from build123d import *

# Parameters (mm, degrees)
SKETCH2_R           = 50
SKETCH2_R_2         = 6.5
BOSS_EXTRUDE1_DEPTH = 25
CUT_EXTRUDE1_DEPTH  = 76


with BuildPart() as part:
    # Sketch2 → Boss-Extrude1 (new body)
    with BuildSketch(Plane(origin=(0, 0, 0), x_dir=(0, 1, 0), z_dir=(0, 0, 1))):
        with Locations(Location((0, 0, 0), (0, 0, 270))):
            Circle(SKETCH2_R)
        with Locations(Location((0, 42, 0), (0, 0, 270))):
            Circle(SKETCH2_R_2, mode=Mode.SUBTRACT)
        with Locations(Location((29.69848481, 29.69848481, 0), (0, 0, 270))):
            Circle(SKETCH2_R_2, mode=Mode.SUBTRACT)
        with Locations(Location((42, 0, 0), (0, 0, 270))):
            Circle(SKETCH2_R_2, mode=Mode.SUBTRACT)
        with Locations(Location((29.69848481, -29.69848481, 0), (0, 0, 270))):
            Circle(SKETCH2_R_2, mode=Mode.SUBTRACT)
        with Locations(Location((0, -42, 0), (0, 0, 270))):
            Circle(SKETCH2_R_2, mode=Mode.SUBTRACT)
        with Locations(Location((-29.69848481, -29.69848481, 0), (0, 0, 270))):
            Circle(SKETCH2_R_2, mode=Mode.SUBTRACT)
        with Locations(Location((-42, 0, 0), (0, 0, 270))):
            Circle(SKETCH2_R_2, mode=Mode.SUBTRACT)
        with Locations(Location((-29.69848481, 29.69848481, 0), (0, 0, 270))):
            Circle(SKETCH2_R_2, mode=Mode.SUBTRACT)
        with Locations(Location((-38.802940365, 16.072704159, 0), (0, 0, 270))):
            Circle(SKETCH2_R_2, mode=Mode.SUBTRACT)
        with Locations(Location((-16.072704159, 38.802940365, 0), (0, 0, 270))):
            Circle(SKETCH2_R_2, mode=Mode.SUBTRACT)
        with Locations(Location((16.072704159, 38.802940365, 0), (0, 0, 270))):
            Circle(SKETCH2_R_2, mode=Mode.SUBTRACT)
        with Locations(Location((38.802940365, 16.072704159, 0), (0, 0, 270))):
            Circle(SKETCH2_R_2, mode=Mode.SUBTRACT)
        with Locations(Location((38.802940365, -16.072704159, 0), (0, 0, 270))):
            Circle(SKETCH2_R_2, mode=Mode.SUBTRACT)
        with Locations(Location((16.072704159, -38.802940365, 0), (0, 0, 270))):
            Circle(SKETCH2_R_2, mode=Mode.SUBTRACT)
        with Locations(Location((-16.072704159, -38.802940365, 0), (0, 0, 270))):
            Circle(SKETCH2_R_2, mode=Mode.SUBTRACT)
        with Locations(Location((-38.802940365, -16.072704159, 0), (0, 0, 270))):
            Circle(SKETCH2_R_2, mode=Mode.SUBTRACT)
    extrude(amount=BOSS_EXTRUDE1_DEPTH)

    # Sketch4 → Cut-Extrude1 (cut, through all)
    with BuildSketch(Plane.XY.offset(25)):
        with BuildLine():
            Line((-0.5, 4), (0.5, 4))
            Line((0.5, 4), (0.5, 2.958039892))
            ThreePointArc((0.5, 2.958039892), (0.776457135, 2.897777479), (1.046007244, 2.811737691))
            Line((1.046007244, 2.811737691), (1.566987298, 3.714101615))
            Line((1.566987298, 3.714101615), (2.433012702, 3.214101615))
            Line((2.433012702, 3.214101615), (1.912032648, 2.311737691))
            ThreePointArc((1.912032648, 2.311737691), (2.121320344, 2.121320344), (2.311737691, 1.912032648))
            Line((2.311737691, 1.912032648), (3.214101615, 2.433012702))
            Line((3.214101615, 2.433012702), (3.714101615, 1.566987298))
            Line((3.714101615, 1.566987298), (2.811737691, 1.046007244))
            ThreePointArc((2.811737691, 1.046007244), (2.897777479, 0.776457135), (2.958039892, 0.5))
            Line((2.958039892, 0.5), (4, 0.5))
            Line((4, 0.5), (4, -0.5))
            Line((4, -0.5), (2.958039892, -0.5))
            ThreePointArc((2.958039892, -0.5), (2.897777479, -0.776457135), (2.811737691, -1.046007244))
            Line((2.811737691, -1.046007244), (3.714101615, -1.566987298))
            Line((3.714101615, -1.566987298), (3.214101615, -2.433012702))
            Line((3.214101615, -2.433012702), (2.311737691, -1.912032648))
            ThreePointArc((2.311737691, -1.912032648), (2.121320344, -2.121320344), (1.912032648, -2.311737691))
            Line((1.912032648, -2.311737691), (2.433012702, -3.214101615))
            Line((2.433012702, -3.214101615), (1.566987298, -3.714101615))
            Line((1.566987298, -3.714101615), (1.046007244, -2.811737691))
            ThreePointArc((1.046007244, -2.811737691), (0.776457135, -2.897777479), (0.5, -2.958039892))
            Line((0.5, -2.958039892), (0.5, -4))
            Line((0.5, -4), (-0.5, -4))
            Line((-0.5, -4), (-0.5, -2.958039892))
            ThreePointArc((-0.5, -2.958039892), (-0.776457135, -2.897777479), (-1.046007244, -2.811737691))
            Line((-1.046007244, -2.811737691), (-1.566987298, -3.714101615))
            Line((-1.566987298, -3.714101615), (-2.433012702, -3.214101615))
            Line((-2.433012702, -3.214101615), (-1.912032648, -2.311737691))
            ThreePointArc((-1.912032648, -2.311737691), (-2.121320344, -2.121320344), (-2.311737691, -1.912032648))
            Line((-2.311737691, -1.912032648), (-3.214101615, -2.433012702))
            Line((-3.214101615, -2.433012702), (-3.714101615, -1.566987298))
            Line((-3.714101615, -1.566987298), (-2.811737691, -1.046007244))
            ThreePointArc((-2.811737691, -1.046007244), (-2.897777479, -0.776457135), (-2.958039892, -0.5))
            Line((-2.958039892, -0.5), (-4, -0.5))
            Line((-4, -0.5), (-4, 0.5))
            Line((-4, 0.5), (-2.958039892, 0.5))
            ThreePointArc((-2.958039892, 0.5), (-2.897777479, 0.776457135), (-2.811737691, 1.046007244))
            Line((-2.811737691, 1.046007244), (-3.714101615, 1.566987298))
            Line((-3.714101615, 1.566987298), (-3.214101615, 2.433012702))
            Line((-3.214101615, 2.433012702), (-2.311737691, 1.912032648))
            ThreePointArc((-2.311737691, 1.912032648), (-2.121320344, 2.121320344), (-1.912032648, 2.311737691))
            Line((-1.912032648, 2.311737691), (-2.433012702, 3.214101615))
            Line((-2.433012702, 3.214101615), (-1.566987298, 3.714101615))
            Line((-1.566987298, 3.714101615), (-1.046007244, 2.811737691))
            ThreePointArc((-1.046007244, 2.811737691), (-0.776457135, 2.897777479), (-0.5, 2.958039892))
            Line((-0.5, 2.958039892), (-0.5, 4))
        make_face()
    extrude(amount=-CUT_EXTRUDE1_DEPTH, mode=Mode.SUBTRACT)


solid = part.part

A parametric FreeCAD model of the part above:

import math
import FreeCAD as App
import Part
import Sketcher
Q = App.Units.Quantity

doc = App.newDocument("Part")
body = doc.addObject("PartDesign::Body", "Body")

# Sketch on XY plane
sketch1 = body.newObject("Sketcher::SketchObject", "Sketch")
sketch1.AttachmentSupport = (doc.getObject("XY_Plane"), [""])
sketch1.MapMode = "FlatFace"
sketch1.addGeometry([
    Part.Circle(App.Vector(0, 0, 0), App.Vector(0, 0, 1), 50),  # 0
    Part.Circle(App.Vector(-30, -30, 0), App.Vector(0, 0, 1), 6),  # 1
    Part.Circle(App.Vector(-16, -39, 0), App.Vector(0, 0, 1), 6),  # 2
    Part.Circle(App.Vector(-39, -16, 0), App.Vector(0, 0, 1), 6),  # 3
    Part.Circle(App.Vector(-42, 0, 0), App.Vector(0, 0, 1), 6),  # 4
    Part.Circle(App.Vector(0, -42, 0), App.Vector(0, 0, 1), 6),  # 5
    Part.Circle(App.Vector(16, -39, 0), App.Vector(0, 0, 1), 6),  # 6
    Part.Circle(App.Vector(30, -30, 0), App.Vector(0, 0, 1), 6),  # 7
    Part.Circle(App.Vector(39, -16, 0), App.Vector(0, 0, 1), 6),  # 8
    Part.Circle(App.Vector(-39, 16, 0), App.Vector(0, 0, 1), 6),  # 9
    Part.Circle(App.Vector(-30, 30, 0), App.Vector(0, 0, 1), 6),  # 10
    Part.Circle(App.Vector(-16, 39, 0), App.Vector(0, 0, 1), 6),  # 11
    Part.Circle(App.Vector(0, 42, 0), App.Vector(0, 0, 1), 6),  # 12
    Part.Circle(App.Vector(42, 0, 0), App.Vector(0, 0, 1), 6),  # 13
    Part.Circle(App.Vector(39, 16, 0), App.Vector(0, 0, 1), 6),  # 14
    Part.Circle(App.Vector(16, 39, 0), App.Vector(0, 0, 1), 6),  # 15
    Part.Circle(App.Vector(30, 30, 0), App.Vector(0, 0, 1), 6),  # 16
], False)
sketch1.addConstraint([
    Sketcher.Constraint("Coincident", 0, 3, -1, 1),
    Sketcher.Constraint("Equal", 1, 2),
    Sketcher.Constraint("Equal", 2, 3),
    Sketcher.Constraint("Equal", 3, 4),
    Sketcher.Constraint("Equal", 4, 5),
    Sketcher.Constraint("Equal", 5, 6),
    Sketcher.Constraint("Equal", 6, 7),
    Sketcher.Constraint("Equal", 7, 8),
    Sketcher.Constraint("Equal", 8, 9),
    Sketcher.Constraint("Equal", 9, 10),
    Sketcher.Constraint("Equal", 10, 11),
    Sketcher.Constraint("Equal", 11, 12),
    Sketcher.Constraint("Equal", 12, 13),
    Sketcher.Constraint("Equal", 13, 14),
    Sketcher.Constraint("Equal", 14, 15),
    Sketcher.Constraint("Equal", 15, 16),
    Sketcher.Constraint("Symmetric", 8, 3, 9, 3, -1, 1),
    Sketcher.Constraint("Symmetric", 7, 3, 10, 3, -1, 1),
    Sketcher.Constraint("Symmetric", 6, 3, 11, 3, -1, 1),
    Sketcher.Constraint("Symmetric", 5, 3, 12, 3, -1, 1),
    Sketcher.Constraint("Symmetric", 4, 3, 13, 3, -1, 1),
    Sketcher.Constraint("Symmetric", 3, 3, 14, 3, -1, 1),
    Sketcher.Constraint("Symmetric", 2, 3, 15, 3, -1, 1),
    Sketcher.Constraint("Symmetric", 1, 3, 16, 3, -1, 1),
    Sketcher.Constraint("Symmetric", 2, 3, 6, 3, -2),
    Sketcher.Constraint("Symmetric", 1, 3, 7, 3, -2),
    Sketcher.Constraint("Symmetric", 3, 3, 8, 3, -2),
    Sketcher.Constraint("PointOnObject", 4, 3, -1),
    Sketcher.Constraint("PointOnObject", 5, 3, -2),
    Sketcher.Constraint("Diameter", 0, 100.0),
    Sketcher.Constraint("Diameter", 1, 13.0),
    Sketcher.Constraint("DistanceX", 4, 3, -1, 1, 42.0),
    Sketcher.Constraint("DistanceY", 5, 3, -1, 1, 42.0),
    Sketcher.Constraint("DistanceY", 2, 3, -1, 1, 38.80294),
    Sketcher.Constraint("DistanceX", 3, 3, -1, 1, 38.80294),
    Sketcher.Constraint("DistanceX", 1, 3, 2, 3, 13.625781),
    Sketcher.Constraint("DistanceY", 1, 3, 3, 3, 13.625781),
    Sketcher.Constraint("DistanceX", 2, 3, 6, 3, 32.145408),
    Sketcher.Constraint("DistanceY", 3, 3, 9, 3, 32.145408),
])
pad1 = body.newObject("PartDesign::Pad", "Pad")
pad1.Profile = sketch1
pad1.Length = 25

# Sketch on XY plane
sketch2 = body.newObject("Sketcher::SketchObject", "Sketch001")
sketch2.AttachmentSupport = (doc.getObject("XY_Plane"), [""])
sketch2.MapMode = "FlatFace"
sketch2.AttachmentOffset = App.Placement(App.Vector(0, 0, 25), App.Rotation())
sketch2.addGeometry([
    Part.LineSegment(App.Vector(0.5, 4, 0), App.Vector(-0.5, 4, 0)),  # 0
    Part.LineSegment(App.Vector(-0.5, 4, 0), App.Vector(-0.5, 3, 0)),  # 1
    Part.ArcOfCircle(Part.Circle(App.Vector(0, 0, 0), App.Vector(0, 0, 1), 3), math.radians(99.59), math.radians(110.41)),  # 2
    Part.LineSegment(App.Vector(-1, 2.8, 0), App.Vector(-1.6, 3.7, 0)),  # 3
    Part.LineSegment(App.Vector(-1.6, 3.7, 0), App.Vector(-2.4, 3.2, 0)),  # 4
    Part.LineSegment(App.Vector(-2.4, 3.2, 0), App.Vector(-1.9, 2.3, 0)),  # 5
    Part.ArcOfCircle(Part.Circle(App.Vector(0, 0, 0), App.Vector(0, 0, 1), 3), math.radians(129.59), math.radians(140.41)),  # 6
    Part.LineSegment(App.Vector(-2.3, 1.9, 0), App.Vector(-3.2, 2.4, 0)),  # 7
    Part.LineSegment(App.Vector(-3.2, 2.4, 0), App.Vector(-3.7, 1.6, 0)),  # 8
    Part.LineSegment(App.Vector(-3.7, 1.6, 0), App.Vector(-2.8, 1, 0)),  # 9
    Part.ArcOfCircle(Part.Circle(App.Vector(0, 0, 0), App.Vector(0, 0, 1), 3), math.radians(159.59), math.radians(170.41)),  # 10
    Part.LineSegment(App.Vector(-3, 0.5, 0), App.Vector(-4, 0.5, 0)),  # 11
    Part.LineSegment(App.Vector(-4, 0.5, 0), App.Vector(-4, -0.5, 0)),  # 12
    Part.LineSegment(App.Vector(-4, -0.5, 0), App.Vector(-3, -0.5, 0)),  # 13
    Part.ArcOfCircle(Part.Circle(App.Vector(0, 0, 0), App.Vector(0, 0, 1), 3), math.radians(-170.41), math.radians(-159.59)),  # 14
    Part.LineSegment(App.Vector(-2.8, -1, 0), App.Vector(-3.7, -1.6, 0)),  # 15
    Part.LineSegment(App.Vector(-3.7, -1.6, 0), App.Vector(-3.2, -2.4, 0)),  # 16
    Part.LineSegment(App.Vector(-3.2, -2.4, 0), App.Vector(-2.3, -1.9, 0)),  # 17
    Part.ArcOfCircle(Part.Circle(App.Vector(0, 0, 0), App.Vector(0, 0, 1), 3), math.radians(-140.41), math.radians(-129.59)),  # 18
    Part.LineSegment(App.Vector(-1.9, -2.3, 0), App.Vector(-2.4, -3.2, 0)),  # 19
    Part.LineSegment(App.Vector(-2.4, -3.2, 0), App.Vector(-1.6, -3.7, 0)),  # 20
    Part.LineSegment(App.Vector(-1.6, -3.7, 0), App.Vector(-1, -2.8, 0)),  # 21
    Part.ArcOfCircle(Part.Circle(App.Vector(0, 0, 0), App.Vector(0, 0, 1), 3), math.radians(-110.41), math.radians(-99.59)),  # 22
    Part.LineSegment(App.Vector(-0.5, -3, 0), App.Vector(-0.5, -4, 0)),  # 23
    Part.LineSegment(App.Vector(-0.5, -4, 0), App.Vector(0.5, -4, 0)),  # 24
    Part.LineSegment(App.Vector(0.5, -4, 0), App.Vector(0.5, -3, 0)),  # 25
    Part.ArcOfCircle(Part.Circle(App.Vector(0, 0, 0), App.Vector(0, 0, 1), 3), math.radians(-80.41), math.radians(-69.59)),  # 26
    Part.LineSegment(App.Vector(1, -2.8, 0), App.Vector(1.6, -3.7, 0)),  # 27
    Part.LineSegment(App.Vector(1.6, -3.7, 0), App.Vector(2.4, -3.2, 0)),  # 28
    Part.LineSegment(App.Vector(2.4, -3.2, 0), App.Vector(1.9, -2.3, 0)),  # 29
    Part.ArcOfCircle(Part.Circle(App.Vector(0, 0, 0), App.Vector(0, 0, 1), 3), math.radians(-50.41), math.radians(-39.59)),  # 30
    Part.LineSegment(App.Vector(2.3, -1.9, 0), App.Vector(3.2, -2.4, 0)),  # 31
    Part.LineSegment(App.Vector(3.2, -2.4, 0), App.Vector(3.7, -1.6, 0)),  # 32
    Part.LineSegment(App.Vector(3.7, -1.6, 0), App.Vector(2.8, -1, 0)),  # 33
    Part.ArcOfCircle(Part.Circle(App.Vector(0, 0, 0), App.Vector(0, 0, 1), 3), math.radians(-20.41), math.radians(-9.59)),  # 34
    Part.LineSegment(App.Vector(3, -0.5, 0), App.Vector(4, -0.5, 0)),  # 35
    Part.LineSegment(App.Vector(4, -0.5, 0), App.Vector(4, 0.5, 0)),  # 36
    Part.LineSegment(App.Vector(4, 0.5, 0), App.Vector(3, 0.5, 0)),  # 37
    Part.ArcOfCircle(Part.Circle(App.Vector(0, 0, 0), App.Vector(0, 0, 1), 3), math.radians(9.59), math.radians(20.41)),  # 38
    Part.LineSegment(App.Vector(2.8, 1, 0), App.Vector(3.7, 1.6, 0)),  # 39
    Part.LineSegment(App.Vector(3.7, 1.6, 0), App.Vector(3.2, 2.4, 0)),  # 40
    Part.LineSegment(App.Vector(3.2, 2.4, 0), App.Vector(2.3, 1.9, 0)),  # 41
    Part.ArcOfCircle(Part.Circle(App.Vector(0, 0, 0), App.Vector(0, 0, 1), 3), math.radians(39.59), math.radians(50.41)),  # 42
    Part.LineSegment(App.Vector(1.9, 2.3, 0), App.Vector(2.4, 3.2, 0)),  # 43
    Part.LineSegment(App.Vector(2.4, 3.2, 0), App.Vector(1.6, 3.7, 0)),  # 44
    Part.LineSegment(App.Vector(1.6, 3.7, 0), App.Vector(1, 2.8, 0)),  # 45
    Part.ArcOfCircle(Part.Circle(App.Vector(0, 0, 0), App.Vector(0, 0, 1), 3), math.radians(69.59), math.radians(80.41)),  # 46
    Part.LineSegment(App.Vector(0.5, 3, 0), App.Vector(0.5, 4, 0)),  # 47
], False)
sketch2.addConstraint([
    Sketcher.Constraint("Coincident", 0, 2, 1, 1),
    Sketcher.Constraint("Coincident", 1, 2, 2, 1),
    Sketcher.Constraint("Coincident", 2, 2, 3, 1),
    Sketcher.Constraint("Coincident", 3, 2, 4, 1),
    Sketcher.Constraint("Coincident", 4, 2, 5, 1),
    Sketcher.Constraint("Coincident", 5, 2, 6, 1),
    Sketcher.Constraint("Coincident", 6, 2, 7, 1),
    Sketcher.Constraint("Coincident", 7, 2, 8, 1),
    Sketcher.Constraint("Coincident", 8, 2, 9, 1),
    Sketcher.Constraint("Coincident", 9, 2, 10, 1),
    Sketcher.Constraint("Coincident", 10, 2, 11, 1),
    Sketcher.Constraint("Coincident", 11, 2, 12, 1),
    Sketcher.Constraint("Coincident", 12, 2, 13, 1),
    Sketcher.Constraint("Coincident", 13, 2, 14, 1),
    Sketcher.Constraint("Coincident", 14, 2, 15, 1),
    Sketcher.Constraint("Coincident", 15, 2, 16, 1),
    Sketcher.Constraint("Coincident", 16, 2, 17, 1),
    Sketcher.Constraint("Coincident", 17, 2, 18, 1),
    Sketcher.Constraint("Coincident", 18, 2, 19, 1),
    Sketcher.Constraint("Coincident", 19, 2, 20, 1),
    Sketcher.Constraint("Coincident", 20, 2, 21, 1),
    Sketcher.Constraint("Coincident", 21, 2, 22, 1),
    Sketcher.Constraint("Coincident", 22, 2, 23, 1),
    Sketcher.Constraint("Coincident", 23, 2, 24, 1),
    Sketcher.Constraint("Coincident", 24, 2, 25, 1),
    Sketcher.Constraint("Coincident", 25, 2, 26, 1),
    Sketcher.Constraint("Coincident", 26, 2, 27, 1),
    Sketcher.Constraint("Coincident", 27, 2, 28, 1),
    Sketcher.Constraint("Coincident", 28, 2, 29, 1),
    Sketcher.Constraint("Coincident", 29, 2, 30, 1),
    Sketcher.Constraint("Coincident", 30, 2, 31, 1),
    Sketcher.Constraint("Coincident", 31, 2, 32, 1),
    Sketcher.Constraint("Coincident", 32, 2, 33, 1),
    Sketcher.Constraint("Coincident", 33, 2, 34, 1),
    Sketcher.Constraint("Coincident", 34, 2, 35, 1),
    Sketcher.Constraint("Coincident", 35, 2, 36, 1),
    Sketcher.Constraint("Coincident", 36, 2, 37, 1),
    Sketcher.Constraint("Coincident", 37, 2, 38, 1),
    Sketcher.Constraint("Coincident", 38, 2, 39, 1),
    Sketcher.Constraint("Coincident", 39, 2, 40, 1),
    Sketcher.Constraint("Coincident", 40, 2, 41, 1),
    Sketcher.Constraint("Coincident", 41, 2, 42, 1),
    Sketcher.Constraint("Coincident", 42, 2, 43, 1),
    Sketcher.Constraint("Coincident", 43, 2, 44, 1),
    Sketcher.Constraint("Coincident", 44, 2, 45, 1),
    Sketcher.Constraint("Coincident", 45, 2, 46, 1),
    Sketcher.Constraint("Coincident", 46, 2, 47, 1),
    Sketcher.Constraint("Coincident", 47, 2, 0, 1),
    Sketcher.Constraint("Horizontal", 0),
    Sketcher.Constraint("Vertical", 1),
    Sketcher.Constraint("Horizontal", 11),
    Sketcher.Constraint("Vertical", 12),
    Sketcher.Constraint("Horizontal", 13),
    Sketcher.Constraint("Vertical", 23),
    Sketcher.Constraint("Horizontal", 24),
    Sketcher.Constraint("Vertical", 25),
    Sketcher.Constraint("Horizontal", 35),
    Sketcher.Constraint("Vertical", 36),
    Sketcher.Constraint("Horizontal", 37),
    Sketcher.Constraint("Vertical", 47),
    Sketcher.Constraint("Coincident", 2, 3, -1, 1),
    Sketcher.Constraint("Coincident", 6, 3, -1, 1),
    Sketcher.Constraint("Coincident", 10, 3, -1, 1),
    Sketcher.Constraint("Coincident", 14, 3, -1, 1),
    Sketcher.Constraint("Coincident", 18, 3, -1, 1),
    Sketcher.Constraint("Coincident", 22, 3, -1, 1),
    Sketcher.Constraint("Coincident", 26, 3, -1, 1),
    Sketcher.Constraint("Coincident", 30, 3, -1, 1),
    Sketcher.Constraint("Coincident", 34, 3, -1, 1),
    Sketcher.Constraint("Coincident", 38, 3, -1, 1),
    Sketcher.Constraint("Coincident", 42, 3, -1, 1),
    Sketcher.Constraint("Coincident", 46, 3, -1, 1),
    Sketcher.Constraint("Equal", 2, 6),
    Sketcher.Constraint("Equal", 6, 10),
    Sketcher.Constraint("Equal", 10, 14),
    Sketcher.Constraint("Equal", 14, 18),
    Sketcher.Constraint("Equal", 18, 22),
    Sketcher.Constraint("Equal", 22, 26),
    Sketcher.Constraint("Equal", 26, 30),
    Sketcher.Constraint("Equal", 30, 34),
    Sketcher.Constraint("Equal", 34, 38),
    Sketcher.Constraint("Equal", 38, 42),
    Sketcher.Constraint("Equal", 42, 46),
    Sketcher.Constraint("Symmetric", 0, 2, 24, 2, -1, 1),
    Sketcher.Constraint("Symmetric", 3, 2, 27, 2, -1, 1),
    Sketcher.Constraint("Symmetric", 4, 2, 28, 2, -1, 1),
    Sketcher.Constraint("Symmetric", 7, 2, 31, 2, -1, 1),
    Sketcher.Constraint("Symmetric", 8, 2, 32, 2, -1, 1),
    Sketcher.Constraint("Symmetric", 11, 2, 35, 2, -1, 1),
    Sketcher.Constraint("Symmetric", 15, 2, 39, 2, -1, 1),
    Sketcher.Constraint("Symmetric", 16, 2, 40, 2, -1, 1),
    Sketcher.Constraint("Symmetric", 19, 2, 43, 2, -1, 1),
    Sketcher.Constraint("Symmetric", 20, 2, 44, 2, -1, 1),
    Sketcher.Constraint("Symmetric", 20, 2, 27, 2, -2),
    Sketcher.Constraint("Symmetric", 19, 2, 28, 2, -2),
    Sketcher.Constraint("Symmetric", 16, 2, 31, 2, -2),
    Sketcher.Constraint("Symmetric", 15, 2, 32, 2, -2),
    Sketcher.Constraint("Perpendicular", 3, 4),
    Sketcher.Constraint("Perpendicular", 4, 5),
    Sketcher.Constraint("Perpendicular", 7, 8),
    Sketcher.Constraint("Perpendicular", 8, 9),
    Sketcher.Constraint("Perpendicular", 5, 15),
    Sketcher.Constraint("Perpendicular", 15, 16),
    Sketcher.Constraint("Perpendicular", 16, 17),
    Sketcher.Constraint("Perpendicular", 9, 19),
    Sketcher.Constraint("Perpendicular", 20, 21),
    Sketcher.Constraint("Perpendicular", 17, 27),
    Sketcher.Constraint("Perpendicular", 28, 29),
    Sketcher.Constraint("Perpendicular", 21, 31),
    Sketcher.Constraint("Perpendicular", 32, 33),
    Sketcher.Constraint("Perpendicular", 29, 39),
    Sketcher.Constraint("Perpendicular", 40, 41),
    Sketcher.Constraint("Perpendicular", 33, 43),
    Sketcher.Constraint("Perpendicular", 44, 45),
    Sketcher.Constraint("Horizontal", 22, 2, 25, 2),
    Sketcher.Constraint("Horizontal", 13, 2, 34, 2),
    Sketcher.Constraint("Horizontal", 11, 2, 36, 2),
    Sketcher.Constraint("Horizontal", 1, 2, 46, 2),
    Sketcher.Constraint("Equal", 37, 1),
    Sketcher.Constraint("Equal", 24, 12),
    Sketcher.Constraint("Equal", 3, 5),
    Sketcher.Constraint("Equal", 5, 7),
    Sketcher.Constraint("Equal", 4, 8),
    Sketcher.Constraint("Equal", 7, 9),
    Sketcher.Constraint("Radius", 2, 3.0),
    Sketcher.Constraint("DistanceX", 0, 2, 0, 1, 1.0),
    Sketcher.Constraint("Angle", 3, Q("120 deg")),
    Sketcher.Constraint("Distance", 4, 1.0),
    Sketcher.Constraint("DistanceY", -1, 1, 0, 2, 4.0),
    Sketcher.Constraint("DistanceY", -1, 1, 3, 2, 3.714102),
])
pocket1 = body.newObject("PartDesign::Pocket", "Pocket")
pocket1.Profile = sketch2
pocket1.Type = "ThroughAll"

doc.recompute()
